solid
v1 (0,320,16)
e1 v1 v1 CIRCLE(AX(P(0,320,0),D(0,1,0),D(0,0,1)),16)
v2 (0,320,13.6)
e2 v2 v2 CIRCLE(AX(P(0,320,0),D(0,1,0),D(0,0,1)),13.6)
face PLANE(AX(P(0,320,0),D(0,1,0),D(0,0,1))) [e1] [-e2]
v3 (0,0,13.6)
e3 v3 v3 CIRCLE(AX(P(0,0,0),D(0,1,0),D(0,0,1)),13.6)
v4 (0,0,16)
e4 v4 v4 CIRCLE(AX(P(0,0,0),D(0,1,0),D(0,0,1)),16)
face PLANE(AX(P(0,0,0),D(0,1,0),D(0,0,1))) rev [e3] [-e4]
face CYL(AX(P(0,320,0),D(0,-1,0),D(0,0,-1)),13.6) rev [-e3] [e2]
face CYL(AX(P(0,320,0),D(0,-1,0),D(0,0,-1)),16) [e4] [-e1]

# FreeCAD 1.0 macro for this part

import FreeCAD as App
import Part
import Sketcher

doc = App.newDocument("Part")
body = doc.addObject("PartDesign::Body", "Body")

# Sketch on XZ plane
sketch1 = body.newObject("Sketcher::SketchObject", "Sketch")
sketch1.AttachmentSupport = (doc.getObject("XZ_Plane"), [""])
sketch1.MapMode = "FlatFace"
sketch1.addGeometry(Part.Circle(App.Vector(0, 0, 0), App.Vector(0, 0, 1), 16), False)
sketch1.addGeometry(Part.Circle(App.Vector(0, 0, 0), App.Vector(0, 0, 1), 14), False)
sketch1.addConstraint(Sketcher.Constraint("Coincident", 0, 3, -1, 1))
sketch1.addConstraint(Sketcher.Constraint("Coincident", 1, 3, -1, 1))
sketch1.addConstraint(Sketcher.Constraint("Diameter", 0, 32.0))
sketch1.addConstraint(Sketcher.Constraint("Diameter", 1, 27.2))
pad1 = body.newObject("PartDesign::Pad", "Pad")
pad1.Profile = sketch1
pad1.Length = 320
pad1.Reversed = True

doc.recompute()
